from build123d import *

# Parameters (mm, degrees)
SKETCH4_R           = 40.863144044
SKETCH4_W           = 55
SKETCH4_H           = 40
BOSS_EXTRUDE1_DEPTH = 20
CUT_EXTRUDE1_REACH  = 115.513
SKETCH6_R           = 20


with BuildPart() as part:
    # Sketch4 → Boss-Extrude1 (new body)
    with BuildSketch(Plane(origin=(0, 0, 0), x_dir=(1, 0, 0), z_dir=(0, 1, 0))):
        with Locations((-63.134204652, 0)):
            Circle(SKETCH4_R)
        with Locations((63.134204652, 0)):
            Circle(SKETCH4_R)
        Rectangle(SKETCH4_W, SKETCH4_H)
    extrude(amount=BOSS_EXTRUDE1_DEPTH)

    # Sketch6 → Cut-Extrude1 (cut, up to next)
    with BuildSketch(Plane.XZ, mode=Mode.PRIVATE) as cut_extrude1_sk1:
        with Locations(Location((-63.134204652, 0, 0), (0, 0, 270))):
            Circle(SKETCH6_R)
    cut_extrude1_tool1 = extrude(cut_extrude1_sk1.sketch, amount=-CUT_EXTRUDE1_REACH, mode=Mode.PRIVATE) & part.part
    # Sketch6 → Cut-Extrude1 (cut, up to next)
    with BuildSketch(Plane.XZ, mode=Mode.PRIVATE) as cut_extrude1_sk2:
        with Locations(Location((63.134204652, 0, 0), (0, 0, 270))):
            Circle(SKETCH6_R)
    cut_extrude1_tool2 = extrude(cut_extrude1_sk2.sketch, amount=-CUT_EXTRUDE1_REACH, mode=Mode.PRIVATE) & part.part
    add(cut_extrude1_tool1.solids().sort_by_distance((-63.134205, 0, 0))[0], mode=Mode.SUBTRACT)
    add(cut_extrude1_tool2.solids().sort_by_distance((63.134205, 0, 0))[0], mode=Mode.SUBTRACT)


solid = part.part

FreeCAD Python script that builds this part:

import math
import FreeCAD as App
import Part
import Sketcher
from FreeCAD import Vector

doc = App.newDocument("Part")
params = doc.addObject("Spreadsheet::Sheet", "Params")
for row, (alias, value) in enumerate([
    ("sketch1_width", "55 mm"),
    ("pad1_length", "20 mm"),
    ("sketch2_diameter", "40 mm"),
    ("sketch3_diameter", "40 mm"),
], start=1):
    params.set(f"A{row}", alias)
    params.set(f"B{row}", "=" + value)
    params.setAlias(f"B{row}", alias)

body = doc.addObject("PartDesign::Body", "Body")

sketch1 = doc.addObject("Sketcher::SketchObject", "Sketch")
body.addObject(sketch1)
sketch1.AttachmentSupport = (doc.XZ_Plane, [""])
sketch1.MapMode = "FlatFace"
sketch1.addGeometry([
    Part.LineSegment(Vector(-28, 20, 0), Vector(28, 20, 0)),
    Part.ArcOfCircle(Part.Circle(Vector(63, 0, 0), Vector(0, 0, 1), 41), math.radians(-151), math.radians(151)),
    Part.LineSegment(Vector(28, -20, 0), Vector(-28, -20, 0)),
    Part.ArcOfCircle(Part.Circle(Vector(-63, 0, 0), Vector(0, 0, 1), 41), math.radians(29), math.radians(331)),
], False)
sketch1.addConstraint([
    Sketcher.Constraint("Coincident", 0, 2, 1, 2),
    Sketcher.Constraint("Coincident", 1, 1, 2, 1),
    Sketcher.Constraint("Coincident", 2, 2, 3, 2),
    Sketcher.Constraint("Coincident", 3, 1, 0, 1),
    Sketcher.Constraint("Horizontal", 0),
    Sketcher.Constraint("Horizontal", 2),
    Sketcher.Constraint("Equal", 1, 3),
    Sketcher.Constraint("Symmetric", 1, 3, 3, 3, -1, 1),
    Sketcher.Constraint("Symmetric", 0, 2, 1, 1, -1),
    Sketcher.Constraint("DistanceX", 0, 1, 0, 2, 55.0),
    Sketcher.Constraint("DistanceY", -1, 1, 0, 2, 20.0),
    Sketcher.Constraint("Radius", 1, 40.863144),
])
sketch1.setExpression("Constraints[9]", "Params.sketch1_width")
pad1 = doc.addObject("PartDesign::Pad", "Pad")
body.addObject(pad1)
pad1.Profile = sketch1
pad1.setExpression("Length", "Params.pad1_length")
pad1.Reversed = True

sketch2 = doc.addObject("Sketcher::SketchObject", "Sketch001")
body.addObject(sketch2)
sketch2.AttachmentSupport = (doc.XZ_Plane, [""])
sketch2.MapMode = "FlatFace"
sketch2.addGeometry(Part.Circle(Vector(-63, 0, 0), Vector(0, 0, 1), 20), False)
sketch2.addConstraint([
    Sketcher.Constraint("PointOnObject", 0, 3, -1),
    Sketcher.Constraint("Diameter", 0, 40.0),
    Sketcher.Constraint("DistanceX", 0, 3, -1, 1, 63.134205),
])
sketch2.setExpression("Constraints[1]", "Params.sketch2_diameter")
pocket1 = doc.addObject("PartDesign::Pocket", "Pocket")
body.addObject(pocket1)
pocket1.Profile = sketch2
pocket1.Type = "UpToFirst"

sketch3 = doc.addObject("Sketcher::SketchObject", "Sketch002")
body.addObject(sketch3)
sketch3.AttachmentSupport = (doc.XZ_Plane, [""])
sketch3.MapMode = "FlatFace"
sketch3.addGeometry(Part.Circle(Vector(63, 0, 0), Vector(0, 0, 1), 20), False)
sketch3.addConstraint([
    Sketcher.Constraint("PointOnObject", 0, 3, -1),
    Sketcher.Constraint("Diameter", 0, 40.0),
    Sketcher.Constraint("DistanceX", -1, 1, 0, 3, 63.134205),
])
sketch3.setExpression("Constraints[1]", "Params.sketch3_diameter")
pocket2 = doc.addObject("PartDesign::Pocket", "Pocket001")
body.addObject(pocket2)
pocket2.Profile = sketch3
pocket2.Type = "UpToFirst"

doc.recompute()
